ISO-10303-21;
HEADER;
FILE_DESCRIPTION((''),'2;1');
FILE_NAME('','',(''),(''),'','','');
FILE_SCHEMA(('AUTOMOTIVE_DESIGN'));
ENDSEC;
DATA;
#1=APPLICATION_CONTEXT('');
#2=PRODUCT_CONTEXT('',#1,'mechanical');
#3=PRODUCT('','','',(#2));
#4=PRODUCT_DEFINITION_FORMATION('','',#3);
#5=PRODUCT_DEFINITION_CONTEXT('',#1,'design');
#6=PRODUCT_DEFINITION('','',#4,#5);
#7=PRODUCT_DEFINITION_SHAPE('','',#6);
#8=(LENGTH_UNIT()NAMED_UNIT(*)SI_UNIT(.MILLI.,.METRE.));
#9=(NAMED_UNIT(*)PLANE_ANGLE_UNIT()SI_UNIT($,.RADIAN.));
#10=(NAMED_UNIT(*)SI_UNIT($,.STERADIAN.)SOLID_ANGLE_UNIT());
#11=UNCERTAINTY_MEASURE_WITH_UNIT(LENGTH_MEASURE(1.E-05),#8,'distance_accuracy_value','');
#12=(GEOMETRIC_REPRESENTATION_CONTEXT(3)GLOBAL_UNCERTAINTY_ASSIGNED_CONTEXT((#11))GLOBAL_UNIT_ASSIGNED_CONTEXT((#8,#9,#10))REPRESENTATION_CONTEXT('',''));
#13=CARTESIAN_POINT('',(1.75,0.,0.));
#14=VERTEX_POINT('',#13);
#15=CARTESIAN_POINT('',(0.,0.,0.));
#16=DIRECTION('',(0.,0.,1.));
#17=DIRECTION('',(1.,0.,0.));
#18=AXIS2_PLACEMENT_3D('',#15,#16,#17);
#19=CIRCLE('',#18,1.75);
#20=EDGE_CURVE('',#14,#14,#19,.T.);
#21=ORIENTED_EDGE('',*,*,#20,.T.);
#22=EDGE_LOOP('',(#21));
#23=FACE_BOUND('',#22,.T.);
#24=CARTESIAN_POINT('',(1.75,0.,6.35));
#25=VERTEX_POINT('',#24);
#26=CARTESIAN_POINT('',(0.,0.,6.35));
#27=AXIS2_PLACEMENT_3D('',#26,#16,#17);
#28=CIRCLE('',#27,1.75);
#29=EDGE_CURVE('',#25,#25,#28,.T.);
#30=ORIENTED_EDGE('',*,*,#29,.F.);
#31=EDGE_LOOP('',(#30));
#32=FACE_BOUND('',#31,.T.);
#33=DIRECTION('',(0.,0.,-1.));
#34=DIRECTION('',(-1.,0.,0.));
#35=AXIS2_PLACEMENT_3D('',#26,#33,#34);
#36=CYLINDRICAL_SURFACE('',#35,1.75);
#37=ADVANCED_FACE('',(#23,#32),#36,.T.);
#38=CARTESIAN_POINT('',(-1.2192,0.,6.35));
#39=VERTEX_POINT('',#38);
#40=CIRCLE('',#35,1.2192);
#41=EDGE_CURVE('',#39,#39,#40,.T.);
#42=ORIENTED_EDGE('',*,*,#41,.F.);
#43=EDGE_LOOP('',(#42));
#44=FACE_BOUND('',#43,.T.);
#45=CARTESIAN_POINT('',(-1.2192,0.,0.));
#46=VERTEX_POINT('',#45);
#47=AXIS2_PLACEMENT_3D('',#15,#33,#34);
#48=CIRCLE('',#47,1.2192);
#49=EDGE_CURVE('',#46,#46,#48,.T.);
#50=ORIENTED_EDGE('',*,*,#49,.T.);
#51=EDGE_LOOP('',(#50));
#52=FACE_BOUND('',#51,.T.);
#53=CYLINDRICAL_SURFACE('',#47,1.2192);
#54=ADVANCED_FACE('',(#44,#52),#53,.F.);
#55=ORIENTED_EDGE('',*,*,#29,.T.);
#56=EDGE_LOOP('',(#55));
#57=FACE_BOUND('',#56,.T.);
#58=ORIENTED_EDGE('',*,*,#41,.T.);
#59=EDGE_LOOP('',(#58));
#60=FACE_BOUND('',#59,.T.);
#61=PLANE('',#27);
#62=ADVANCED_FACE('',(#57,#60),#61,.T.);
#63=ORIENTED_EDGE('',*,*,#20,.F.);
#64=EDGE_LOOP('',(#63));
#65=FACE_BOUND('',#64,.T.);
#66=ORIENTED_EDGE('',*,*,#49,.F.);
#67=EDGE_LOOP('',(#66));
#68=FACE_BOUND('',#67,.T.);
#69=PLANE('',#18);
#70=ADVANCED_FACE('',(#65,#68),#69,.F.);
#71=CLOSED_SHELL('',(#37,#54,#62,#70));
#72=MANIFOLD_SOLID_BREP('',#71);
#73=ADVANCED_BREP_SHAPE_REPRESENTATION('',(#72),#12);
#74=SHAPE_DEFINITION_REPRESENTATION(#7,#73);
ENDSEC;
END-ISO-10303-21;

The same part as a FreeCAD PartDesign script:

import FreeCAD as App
import Part
import Sketcher
from FreeCAD import Vector
Q = App.Units.Quantity

doc = App.newDocument("Part")
body = doc.addObject("PartDesign::Body", "Body")

# Sketch on XY plane
sketch1 = body.newObject("Sketcher::SketchObject", "Sketch")
sketch1.AttachmentSupport = (doc.getObject("XY_Plane"), [""])
sketch1.MapMode = "FlatFace"
sketch1.addGeometry(Part.Circle(Vector(0, 0, 0), Vector(0, 0, 1), 1.8), False)
sketch1.addConstraint(Sketcher.Constraint("Coincident", 0, 3, -1, 1))
sketch1.addConstraint(Sketcher.Constraint("Diameter", 0, 3.5))
pad1 = body.newObject("PartDesign::Pad", "Pad")
pad1.Profile = sketch1
pad1.Length = Q("0.25 in")

# Sketch on XY plane
sketch2 = body.newObject("Sketcher::SketchObject", "Sketch001")
sketch2.AttachmentSupport = (doc.getObject("XY_Plane"), [""])
sketch2.MapMode = "FlatFace"
sketch2.addGeometry(Part.Circle(Vector(0, 0, 0), Vector(0, 0, 1), 1.2), False)
sketch2.addConstraint(Sketcher.Constraint("Coincident", 0, 3, -1, 1))
sketch2.addConstraint(Sketcher.Constraint("Diameter", 0, Q("0.096 in")))
doc.recompute()
hole = body.newObject("PartDesign::Hole", "Hole")
hole.Profile = sketch2
hole.ThreadType = "None"
hole.Diameter = Q("0.096 in")
hole.DepthType = "ThroughAll"
hole.Reversed = True

doc.recompute()
